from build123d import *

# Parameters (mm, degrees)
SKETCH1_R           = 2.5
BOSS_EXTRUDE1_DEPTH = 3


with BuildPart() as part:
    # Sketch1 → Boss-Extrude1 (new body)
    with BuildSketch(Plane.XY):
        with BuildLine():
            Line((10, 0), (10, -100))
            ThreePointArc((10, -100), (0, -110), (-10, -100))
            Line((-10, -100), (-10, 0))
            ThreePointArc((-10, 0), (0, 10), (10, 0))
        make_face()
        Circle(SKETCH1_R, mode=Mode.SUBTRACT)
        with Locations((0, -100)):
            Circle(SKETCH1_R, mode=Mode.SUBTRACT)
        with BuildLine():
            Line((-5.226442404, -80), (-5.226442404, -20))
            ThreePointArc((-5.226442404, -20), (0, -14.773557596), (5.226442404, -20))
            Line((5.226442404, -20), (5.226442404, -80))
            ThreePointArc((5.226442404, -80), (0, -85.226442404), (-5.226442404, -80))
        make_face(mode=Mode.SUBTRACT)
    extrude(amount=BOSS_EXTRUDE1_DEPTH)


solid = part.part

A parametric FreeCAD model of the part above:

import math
import FreeCAD as App
import Part
import Sketcher

doc = App.newDocument("Part")
body = doc.addObject("PartDesign::Body", "Body")

# Sketch on XY plane
sketch1 = body.newObject("Sketcher::SketchObject", "Sketch")
sketch1.AttachmentSupport = (doc.getObject("XY_Plane"), [""])
sketch1.MapMode = "FlatFace"
sketch1.addGeometry([
    Part.LineSegment(App.Vector(10, -100, 0), App.Vector(10, 0, 0)),  # 0
    Part.ArcOfCircle(Part.Circle(App.Vector(0, 0, 0), App.Vector(0, 0, 1), 10), math.radians(0), math.radians(180)),  # 1
    Part.LineSegment(App.Vector(-10, 0, 0), App.Vector(-10, -100, 0)),  # 2
    Part.ArcOfCircle(Part.Circle(App.Vector(0, -100, 0), App.Vector(0, 0, 1), 10), math.radians(180), math.radians(360)),  # 3
    Part.Circle(App.Vector(0, -100, 0), App.Vector(0, 0, 1), 2.5),  # 4
    Part.LineSegment(App.Vector(-5.226442, -80, 0), App.Vector(-5.226442, -20, 0)),  # 5
    Part.ArcOfCircle(Part.Circle(App.Vector(0, -20, 0), App.Vector(0, 0, 1), 5.226442), math.radians(0), math.radians(180)),  # 6
    Part.LineSegment(App.Vector(5.226442, -20, 0), App.Vector(5.226442, -80, 0)),  # 7
    Part.ArcOfCircle(Part.Circle(App.Vector(0, -80, 0), App.Vector(0, 0, 1), 5.226442), math.radians(180), math.radians(360)),  # 8
    Part.Circle(App.Vector(0, 0, 0), App.Vector(0, 0, 1), 2.5),  # 9
], False)
sketch1.addConstraint([
    Sketcher.Constraint("Tangent", 0, 2, 1, 1),
    Sketcher.Constraint("Tangent", 1, 2, 2, 1),
    Sketcher.Constraint("Tangent", 2, 2, 3, 1),
    Sketcher.Constraint("Tangent", 3, 2, 0, 1),
    Sketcher.Constraint("Tangent", 5, 2, 6, 2),
    Sketcher.Constraint("Tangent", 6, 1, 7, 1),
    Sketcher.Constraint("Tangent", 7, 2, 8, 2),
    Sketcher.Constraint("Tangent", 8, 1, 5, 1),
    Sketcher.Constraint("Vertical", 0),
    Sketcher.Constraint("Vertical", 2),
    Sketcher.Constraint("Vertical", 5),
    Sketcher.Constraint("Vertical", 7),
    Sketcher.Constraint("Coincident", 1, 3, -1, 1),
    Sketcher.Constraint("Coincident", 9, 3, -1, 1),
    Sketcher.Constraint("Coincident", 4, 3, 3, 3),
    Sketcher.Constraint("Equal", 4, 9),
    Sketcher.Constraint("PointOnObject", 6, 3, -2),
    Sketcher.Constraint("Diameter", 4, 5.0),
    Sketcher.Constraint("Radius", 1, 10.0),
    Sketcher.Constraint("DistanceY", 0, 1, 0, 2, 100.0),
    Sketcher.Constraint("DistanceY", 5, 1, 5, 2, 60.0),
    Sketcher.Constraint("DistanceY", 6, 3, -1, 1, 20.0),
    Sketcher.Constraint("Radius", 6, 5.226442),
])
pad1 = body.newObject("PartDesign::Pad", "Pad")
pad1.Profile = sketch1
pad1.Length = 3

doc.recompute()
